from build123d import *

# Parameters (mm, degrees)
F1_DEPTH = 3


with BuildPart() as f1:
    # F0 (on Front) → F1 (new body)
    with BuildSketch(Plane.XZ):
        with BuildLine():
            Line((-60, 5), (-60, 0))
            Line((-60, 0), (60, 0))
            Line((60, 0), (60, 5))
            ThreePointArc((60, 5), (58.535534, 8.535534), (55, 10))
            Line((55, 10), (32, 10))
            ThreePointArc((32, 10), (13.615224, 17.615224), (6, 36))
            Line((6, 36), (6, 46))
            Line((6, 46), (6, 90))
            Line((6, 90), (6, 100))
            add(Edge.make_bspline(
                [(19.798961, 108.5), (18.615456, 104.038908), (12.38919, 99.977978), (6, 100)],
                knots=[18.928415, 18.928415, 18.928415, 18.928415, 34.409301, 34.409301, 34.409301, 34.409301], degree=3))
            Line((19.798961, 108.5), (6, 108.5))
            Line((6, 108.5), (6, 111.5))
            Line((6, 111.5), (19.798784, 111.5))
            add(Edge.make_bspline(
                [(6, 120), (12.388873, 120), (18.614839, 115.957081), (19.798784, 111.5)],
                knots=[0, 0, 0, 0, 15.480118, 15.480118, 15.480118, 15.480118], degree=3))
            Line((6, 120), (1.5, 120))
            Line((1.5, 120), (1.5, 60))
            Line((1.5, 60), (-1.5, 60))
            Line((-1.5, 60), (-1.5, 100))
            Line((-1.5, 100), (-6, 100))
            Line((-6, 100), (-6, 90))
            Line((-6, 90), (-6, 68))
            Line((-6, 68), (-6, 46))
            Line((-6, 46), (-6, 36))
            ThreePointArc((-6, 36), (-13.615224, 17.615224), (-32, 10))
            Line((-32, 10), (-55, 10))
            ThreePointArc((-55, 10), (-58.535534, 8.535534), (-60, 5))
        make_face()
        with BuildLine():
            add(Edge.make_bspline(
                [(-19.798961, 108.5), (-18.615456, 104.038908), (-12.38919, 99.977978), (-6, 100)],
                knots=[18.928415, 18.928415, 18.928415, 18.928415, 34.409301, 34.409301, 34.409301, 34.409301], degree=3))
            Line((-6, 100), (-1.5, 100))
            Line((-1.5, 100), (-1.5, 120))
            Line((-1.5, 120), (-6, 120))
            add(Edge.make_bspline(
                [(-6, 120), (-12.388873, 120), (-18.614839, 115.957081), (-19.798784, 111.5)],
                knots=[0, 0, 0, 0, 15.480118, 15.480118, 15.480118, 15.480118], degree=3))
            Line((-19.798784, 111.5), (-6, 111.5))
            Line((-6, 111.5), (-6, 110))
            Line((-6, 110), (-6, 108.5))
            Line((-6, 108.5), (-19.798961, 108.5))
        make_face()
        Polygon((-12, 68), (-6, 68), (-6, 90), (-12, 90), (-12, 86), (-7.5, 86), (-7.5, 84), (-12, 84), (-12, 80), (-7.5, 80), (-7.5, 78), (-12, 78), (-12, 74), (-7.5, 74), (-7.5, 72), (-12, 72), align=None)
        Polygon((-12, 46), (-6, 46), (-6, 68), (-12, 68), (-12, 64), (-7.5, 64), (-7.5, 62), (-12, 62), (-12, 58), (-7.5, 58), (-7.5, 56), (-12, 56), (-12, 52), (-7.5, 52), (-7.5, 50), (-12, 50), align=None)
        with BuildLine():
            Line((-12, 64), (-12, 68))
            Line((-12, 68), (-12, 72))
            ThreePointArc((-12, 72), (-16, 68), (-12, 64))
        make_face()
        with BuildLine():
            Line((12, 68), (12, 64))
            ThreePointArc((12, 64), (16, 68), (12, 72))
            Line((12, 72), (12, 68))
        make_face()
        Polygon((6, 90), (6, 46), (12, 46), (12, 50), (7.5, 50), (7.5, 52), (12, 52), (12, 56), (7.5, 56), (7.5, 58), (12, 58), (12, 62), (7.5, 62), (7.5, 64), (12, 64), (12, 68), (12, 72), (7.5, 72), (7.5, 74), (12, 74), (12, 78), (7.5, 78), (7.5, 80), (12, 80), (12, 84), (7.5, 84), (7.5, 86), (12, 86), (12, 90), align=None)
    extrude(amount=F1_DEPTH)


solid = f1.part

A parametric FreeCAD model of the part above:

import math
import FreeCAD as App
import Part
import Sketcher
from FreeCAD import Vector
Q = App.Units.Quantity

doc = App.newDocument("Part")
body = doc.addObject("PartDesign::Body", "Body")

# Sketch on XZ plane
sketch1 = doc.addObject("Sketcher::SketchObject", "Sketch")
body.addObject(sketch1)
sketch1.AttachmentSupport = (doc.XZ_Plane, [""])
sketch1.MapMode = "FlatFace"
sketch1.addGeometry([
    Part.LineSegment(Vector(-60, 5, 0), Vector(-60, 0, 0)),  # 0
    Part.LineSegment(Vector(-60, 0, 0), Vector(60, 0, 0)),  # 1
    Part.LineSegment(Vector(60, 0, 0), Vector(60, 5, 0)),  # 2
    Part.ArcOfCircle(Part.Circle(Vector(55, 5, 0), Vector(0, 0, 1), 5), math.radians(-0.000004), math.radians(90.000004)),  # 3
    Part.LineSegment(Vector(55, 10, 0), Vector(32, 10, 0)),  # 4
    Part.ArcOfCircle(Part.Circle(Vector(32.000001, 36.000001, 0), Vector(0, 0, 1), 26.000001), math.radians(-179.999998), math.radians(-90.000002)),  # 5
    Part.LineSegment(Vector(6, 36, 0), Vector(6, 46, 0)),  # 6
    Part.LineSegment(Vector(6, 46, 0), Vector(12, 46, 0)),  # 7
    Part.LineSegment(Vector(12, 46, 0), Vector(12, 50, 0)),  # 8
    Part.LineSegment(Vector(12, 50, 0), Vector(7.5, 50, 0)),  # 9
    Part.LineSegment(Vector(7.5, 50, 0), Vector(7.5, 52, 0)),  # 10
    Part.LineSegment(Vector(7.5, 52, 0), Vector(12, 52, 0)),  # 11
    Part.LineSegment(Vector(12, 52, 0), Vector(12, 56, 0)),  # 12
    Part.LineSegment(Vector(12, 56, 0), Vector(7.5, 56, 0)),  # 13
    Part.LineSegment(Vector(7.5, 56, 0), Vector(7.5, 58, 0)),  # 14
    Part.LineSegment(Vector(7.5, 58, 0), Vector(12, 58, 0)),  # 15
    Part.LineSegment(Vector(12, 58, 0), Vector(12, 62, 0)),  # 16
    Part.LineSegment(Vector(12, 62, 0), Vector(7.5, 62, 0)),  # 17
    Part.LineSegment(Vector(7.5, 62, 0), Vector(7.5, 64, 0)),  # 18
    Part.LineSegment(Vector(7.5, 64, 0), Vector(12, 64, 0)),  # 19
    Part.ArcOfCircle(Part.Circle(Vector(12, 68, 0), Vector(0, 0, 1), 4), math.radians(-90), math.radians(90)),  # 20
    Part.LineSegment(Vector(12, 72, 0), Vector(7.5, 72, 0)),  # 21
    Part.LineSegment(Vector(7.5, 72, 0), Vector(7.5, 74, 0)),  # 22
    Part.LineSegment(Vector(7.5, 74, 0), Vector(12, 74, 0)),  # 23
    Part.LineSegment(Vector(12, 74, 0), Vector(12, 78, 0)),  # 24
    Part.LineSegment(Vector(12, 78, 0), Vector(7.5, 78, 0)),  # 25
    Part.LineSegment(Vector(7.5, 78, 0), Vector(7.5, 80, 0)),  # 26
    Part.LineSegment(Vector(7.5, 80, 0), Vector(12, 80, 0)),  # 27
    Part.LineSegment(Vector(12, 80, 0), Vector(12, 84, 0)),  # 28
    Part.LineSegment(Vector(12, 84, 0), Vector(7.5, 84, 0)),  # 29
    Part.LineSegment(Vector(7.5, 84, 0), Vector(7.5, 86, 0)),  # 30
    Part.LineSegment(Vector(7.5, 86, 0), Vector(12, 86, 0)),  # 31
    Part.LineSegment(Vector(12, 86, 0), Vector(12, 90, 0)),  # 32
    Part.LineSegment(Vector(12, 90, 0), Vector(6, 90, 0)),  # 33
    Part.LineSegment(Vector(6, 90, 0), Vector(6, 100, 0)),  # 34
    Part.BSplineCurve([Vector(19.798961, 108.5, 0), Vector(18.615456, 104.038908, 0), Vector(12.38919, 99.977978, 0), Vector(6, 100, 0)], [4, 4], [18.928415, 34.409301], False, 3, [1, 1, 1, 1], False),  # 35
    Part.LineSegment(Vector(19.798961, 108.5, 0), Vector(6, 108.5, 0)),  # 36
    Part.LineSegment(Vector(6, 108.5, 0), Vector(6, 111.5, 0)),  # 37
    Part.LineSegment(Vector(6, 111.5, 0), Vector(19.798784, 111.5, 0)),  # 38
    Part.BSplineCurve([Vector(6, 120, 0), Vector(12.388873, 120, 0), Vector(18.614839, 115.957081, 0), Vector(19.798784, 111.5, 0)], [4, 4], [0, 15.480118], False, 3, [1, 1, 1, 1], False),  # 39
    Part.LineSegment(Vector(6, 120, 0), Vector(1.5, 120, 0)),  # 40
    Part.LineSegment(Vector(1.5, 120, 0), Vector(1.5, 60, 0)),  # 41
    Part.LineSegment(Vector(1.5, 60, 0), Vector(-1.5, 60, 0)),  # 42
    Part.LineSegment(Vector(-1.5, 60, 0), Vector(-1.5, 120, 0)),  # 43
    Part.LineSegment(Vector(-1.5, 120, 0), Vector(-6, 120, 0)),  # 44
    Part.BSplineCurve([Vector(-6, 120, 0), Vector(-12.388873, 120, 0), Vector(-18.614839, 115.957081, 0), Vector(-19.798784, 111.5, 0)], [4, 4], [0, 15.480118], False, 3, [1, 1, 1, 1], False),  # 45
    Part.LineSegment(Vector(-19.798784, 111.5, 0), Vector(-6, 111.5, 0)),  # 46
    Part.LineSegment(Vector(-6, 111.5, 0), Vector(-6, 108.5, 0)),  # 47
    Part.LineSegment(Vector(-6, 108.5, 0), Vector(-19.798961, 108.5, 0)),  # 48
    Part.BSplineCurve([Vector(-19.798961, 108.5, 0), Vector(-18.615456, 104.038908, 0), Vector(-12.38919, 99.977978, 0), Vector(-6, 100, 0)], [4, 4], [18.928415, 34.409301], False, 3, [1, 1, 1, 1], False),  # 49
    Part.LineSegment(Vector(-6, 100, 0), Vector(-6, 90, 0)),  # 50
    Part.LineSegment(Vector(-6, 90, 0), Vector(-12, 90, 0)),  # 51
    Part.LineSegment(Vector(-12, 90, 0), Vector(-12, 86, 0)),  # 52
    Part.LineSegment(Vector(-12, 86, 0), Vector(-7.5, 86, 0)),  # 53
    Part.LineSegment(Vector(-7.5, 86, 0), Vector(-7.5, 84, 0)),  # 54
    Part.LineSegment(Vector(-7.5, 84, 0), Vector(-12, 84, 0)),  # 55
    Part.LineSegment(Vector(-12, 84, 0), Vector(-12, 80, 0)),  # 56
    Part.LineSegment(Vector(-12, 80, 0), Vector(-7.5, 80, 0)),  # 57
    Part.LineSegment(Vector(-7.5, 80, 0), Vector(-7.5, 78, 0)),  # 58
    Part.LineSegment(Vector(-7.5, 78, 0), Vector(-12, 78, 0)),  # 59
    Part.LineSegment(Vector(-12, 78, 0), Vector(-12, 74, 0)),  # 60
    Part.LineSegment(Vector(-12, 74, 0), Vector(-7.5, 74, 0)),  # 61
    Part.LineSegment(Vector(-7.5, 74, 0), Vector(-7.5, 72, 0)),  # 62
    Part.LineSegment(Vector(-7.5, 72, 0), Vector(-12, 72, 0)),  # 63
    Part.ArcOfCircle(Part.Circle(Vector(-12, 68, 0), Vector(0, 0, 1), 4), math.radians(90), math.radians(270)),  # 64
    Part.LineSegment(Vector(-12, 64, 0), Vector(-7.5, 64, 0)),  # 65
    Part.LineSegment(Vector(-7.5, 64, 0), Vector(-7.5, 62, 0)),  # 66
    Part.LineSegment(Vector(-7.5, 62, 0), Vector(-12, 62, 0)),  # 67
    Part.LineSegment(Vector(-12, 62, 0), Vector(-12, 58, 0)),  # 68
    Part.LineSegment(Vector(-12, 58, 0), Vector(-7.5, 58, 0)),  # 69
    Part.LineSegment(Vector(-7.5, 58, 0), Vector(-7.5, 56, 0)),  # 70
    Part.LineSegment(Vector(-7.5, 56, 0), Vector(-12, 56, 0)),  # 71
    Part.LineSegment(Vector(-12, 56, 0), Vector(-12, 52, 0)),  # 72
    Part.LineSegment(Vector(-12, 52, 0), Vector(-7.5, 52, 0)),  # 73
    Part.LineSegment(Vector(-7.5, 52, 0), Vector(-7.5, 50, 0)),  # 74
    Part.LineSegment(Vector(-7.5, 50, 0), Vector(-12, 50, 0)),  # 75
    Part.LineSegment(Vector(-12, 50, 0), Vector(-12, 46, 0)),  # 76
    Part.LineSegment(Vector(-12, 46, 0), Vector(-6, 46, 0)),  # 77
    Part.LineSegment(Vector(-6, 46, 0), Vector(-6, 36, 0)),  # 78
    Part.ArcOfCircle(Part.Circle(Vector(-32.000001, 36.000001, 0), Vector(0, 0, 1), 26.000001), math.radians(-89.999998), math.radians(-0.000002)),  # 79
    Part.LineSegment(Vector(-32, 10, 0), Vector(-55, 10, 0)),  # 80
    Part.ArcOfCircle(Part.Circle(Vector(-55, 5, 0), Vector(0, 0, 1), 5), math.radians(89.999996), math.radians(180.000004)),  # 81
], False)
sketch1.addConstraint([
    Sketcher.Constraint("Block", 35),
    Sketcher.Constraint("Block", 39),
    Sketcher.Constraint("Block", 45),
    Sketcher.Constraint("Block", 49),
    Sketcher.Constraint("Coincident", 0, 2, 1, 1),
    Sketcher.Constraint("Coincident", 1, 2, 2, 1),
    Sketcher.Constraint("Coincident", 2, 2, 3, 1),
    Sketcher.Constraint("Coincident", 3, 2, 4, 1),
    Sketcher.Constraint("Coincident", 4, 2, 5, 2),
    Sketcher.Constraint("Coincident", 5, 1, 6, 1),
    Sketcher.Constraint("Coincident", 6, 2, 7, 1),
    Sketcher.Constraint("Coincident", 7, 2, 8, 1),
    Sketcher.Constraint("Coincident", 8, 2, 9, 1),
    Sketcher.Constraint("Coincident", 9, 2, 10, 1),
    Sketcher.Constraint("Coincident", 10, 2, 11, 1),
    Sketcher.Constraint("Coincident", 11, 2, 12, 1),
    Sketcher.Constraint("Coincident", 12, 2, 13, 1),
    Sketcher.Constraint("Coincident", 13, 2, 14, 1),
    Sketcher.Constraint("Coincident", 14, 2, 15, 1),
    Sketcher.Constraint("Coincident", 15, 2, 16, 1),
    Sketcher.Constraint("Coincident", 16, 2, 17, 1),
    Sketcher.Constraint("Coincident", 17, 2, 18, 1),
    Sketcher.Constraint("Coincident", 18, 2, 19, 1),
    Sketcher.Constraint("Coincident", 19, 2, 20, 1),
    Sketcher.Constraint("Coincident", 20, 2, 21, 1),
    Sketcher.Constraint("Coincident", 21, 2, 22, 1),
    Sketcher.Constraint("Coincident", 22, 2, 23, 1),
    Sketcher.Constraint("Coincident", 23, 2, 24, 1),
    Sketcher.Constraint("Coincident", 24, 2, 25, 1),
    Sketcher.Constraint("Coincident", 25, 2, 26, 1),
    Sketcher.Constraint("Coincident", 26, 2, 27, 1),
    Sketcher.Constraint("Coincident", 27, 2, 28, 1),
    Sketcher.Constraint("Coincident", 28, 2, 29, 1),
    Sketcher.Constraint("Coincident", 29, 2, 30, 1),
    Sketcher.Constraint("Coincident", 30, 2, 31, 1),
    Sketcher.Constraint("Coincident", 31, 2, 32, 1),
    Sketcher.Constraint("Coincident", 32, 2, 33, 1),
    Sketcher.Constraint("Coincident", 33, 2, 34, 1),
    Sketcher.Constraint("Coincident", 34, 2, 35, 2),
    Sketcher.Constraint("Coincident", 35, 1, 36, 1),
    Sketcher.Constraint("Coincident", 36, 2, 37, 1),
    Sketcher.Constraint("Coincident", 37, 2, 38, 1),
    Sketcher.Constraint("Coincident", 38, 2, 39, 2),
    Sketcher.Constraint("Coincident", 39, 1, 40, 1),
    Sketcher.Constraint("Coincident", 40, 2, 41, 1),
    Sketcher.Constraint("Coincident", 41, 2, 42, 1),
    Sketcher.Constraint("Coincident", 42, 2, 43, 1),
    Sketcher.Constraint("Coincident", 43, 2, 44, 1),
    Sketcher.Constraint("Coincident", 44, 2, 45, 1),
    Sketcher.Constraint("Coincident", 45, 2, 46, 1),
    Sketcher.Constraint("Coincident", 46, 2, 47, 1),
    Sketcher.Constraint("Coincident", 47, 2, 48, 1),
    Sketcher.Constraint("Coincident", 48, 2, 49, 1),
    Sketcher.Constraint("Coincident", 49, 2, 50, 1),
    Sketcher.Constraint("Coincident", 50, 2, 51, 1),
    Sketcher.Constraint("Coincident", 51, 2, 52, 1),
    Sketcher.Constraint("Coincident", 52, 2, 53, 1),
    Sketcher.Constraint("Coincident", 53, 2, 54, 1),
    Sketcher.Constraint("Coincident", 54, 2, 55, 1),
    Sketcher.Constraint("Coincident", 55, 2, 56, 1),
    Sketcher.Constraint("Coincident", 56, 2, 57, 1),
    Sketcher.Constraint("Coincident", 57, 2, 58, 1),
    Sketcher.Constraint("Coincident", 58, 2, 59, 1),
    Sketcher.Constraint("Coincident", 59, 2, 60, 1),
    Sketcher.Constraint("Coincident", 60, 2, 61, 1),
    Sketcher.Constraint("Coincident", 61, 2, 62, 1),
    Sketcher.Constraint("Coincident", 62, 2, 63, 1),
    Sketcher.Constraint("Coincident", 63, 2, 64, 1),
    Sketcher.Constraint("Coincident", 64, 2, 65, 1),
    Sketcher.Constraint("Coincident", 65, 2, 66, 1),
    Sketcher.Constraint("Coincident", 66, 2, 67, 1),
    Sketcher.Constraint("Coincident", 67, 2, 68, 1),
    Sketcher.Constraint("Coincident", 68, 2, 69, 1),
    Sketcher.Constraint("Coincident", 69, 2, 70, 1),
    Sketcher.Constraint("Coincident", 70, 2, 71, 1),
    Sketcher.Constraint("Coincident", 71, 2, 72, 1),
    Sketcher.Constraint("Coincident", 72, 2, 73, 1),
    Sketcher.Constraint("Coincident", 73, 2, 74, 1),
    Sketcher.Constraint("Coincident", 74, 2, 75, 1),
    Sketcher.Constraint("Coincident", 75, 2, 76, 1),
    Sketcher.Constraint("Coincident", 76, 2, 77, 1),
    Sketcher.Constraint("Coincident", 77, 2, 78, 1),
    Sketcher.Constraint("Coincident", 78, 2, 79, 2),
    Sketcher.Constraint("Coincident", 79, 1, 80, 1),
    Sketcher.Constraint("Coincident", 80, 2, 81, 1),
    Sketcher.Constraint("Coincident", 81, 2, 0, 1),
    Sketcher.Constraint("Vertical", 0),
    Sketcher.Constraint("Horizontal", 1),
    Sketcher.Constraint("Vertical", 2),
    Sketcher.Constraint("Horizontal", 4),
    Sketcher.Constraint("Vertical", 6),
    Sketcher.Constraint("Horizontal", 7),
    Sketcher.Constraint("Vertical", 8),
    Sketcher.Constraint("Horizontal", 9),
    Sketcher.Constraint("Vertical", 10),
    Sketcher.Constraint("Horizontal", 11),
    Sketcher.Constraint("Vertical", 12),
    Sketcher.Constraint("Horizontal", 13),
    Sketcher.Constraint("Vertical", 14),
    Sketcher.Constraint("Horizontal", 15),
    Sketcher.Constraint("Vertical", 16),
    Sketcher.Constraint("Horizontal", 17),
    Sketcher.Constraint("Vertical", 18),
    Sketcher.Constraint("Horizontal", 19),
    Sketcher.Constraint("Horizontal", 21),
    Sketcher.Constraint("Vertical", 22),
    Sketcher.Constraint("Horizontal", 23),
    Sketcher.Constraint("Vertical", 24),
    Sketcher.Constraint("Horizontal", 25),
    Sketcher.Constraint("Vertical", 26),
    Sketcher.Constraint("Horizontal", 27),
    Sketcher.Constraint("Vertical", 28),
    Sketcher.Constraint("Horizontal", 29),
    Sketcher.Constraint("Vertical", 30),
    Sketcher.Constraint("Horizontal", 31),
    Sketcher.Constraint("Vertical", 32),
    Sketcher.Constraint("Horizontal", 33),
    Sketcher.Constraint("Vertical", 34),
    Sketcher.Constraint("Horizontal", 36),
    Sketcher.Constraint("Vertical", 37),
    Sketcher.Constraint("Horizontal", 38),
    Sketcher.Constraint("Horizontal", 40),
    Sketcher.Constraint("Vertical", 41),
    Sketcher.Constraint("Horizontal", 42),
    Sketcher.Constraint("Vertical", 43),
    Sketcher.Constraint("Horizontal", 44),
    Sketcher.Constraint("Horizontal", 46),
    Sketcher.Constraint("Vertical", 47),
    Sketcher.Constraint("Horizontal", 48),
    Sketcher.Constraint("Vertical", 50),
    Sketcher.Constraint("Horizontal", 51),
    Sketcher.Constraint("Vertical", 52),
    Sketcher.Constraint("Horizontal", 53),
    Sketcher.Constraint("Vertical", 54),
    Sketcher.Constraint("Horizontal", 55),
    Sketcher.Constraint("Vertical", 56),
    Sketcher.Constraint("Horizontal", 57),
    Sketcher.Constraint("Vertical", 58),
    Sketcher.Constraint("Horizontal", 59),
    Sketcher.Constraint("Vertical", 60),
    Sketcher.Constraint("Horizontal", 61),
    Sketcher.Constraint("Vertical", 62),
    Sketcher.Constraint("Horizontal", 63),
    Sketcher.Constraint("Horizontal", 65),
    Sketcher.Constraint("Vertical", 66),
    Sketcher.Constraint("Horizontal", 67),
    Sketcher.Constraint("Vertical", 68),
    Sketcher.Constraint("Horizontal", 69),
    Sketcher.Constraint("Vertical", 70),
    Sketcher.Constraint("Horizontal", 71),
    Sketcher.Constraint("Vertical", 72),
    Sketcher.Constraint("Horizontal", 73),
    Sketcher.Constraint("Vertical", 74),
    Sketcher.Constraint("Horizontal", 75),
    Sketcher.Constraint("Vertical", 76),
    Sketcher.Constraint("Horizontal", 77),
    Sketcher.Constraint("Vertical", 78),
    Sketcher.Constraint("Horizontal", 80),
    Sketcher.Constraint("PointOnObject", 0, 2, -1),
    Sketcher.Constraint("Radius", 3, Q("5 mm")),
    Sketcher.Constraint("Radius", 5, Q("26.000001 mm")),
    Sketcher.Constraint("Radius", 20, Q("4 mm")),
    Sketcher.Constraint("Radius", 64, Q("4 mm")),
    Sketcher.Constraint("Radius", 79, Q("26.000001 mm")),
    Sketcher.Constraint("Radius", 81, Q("5 mm")),
    Sketcher.Constraint("DistanceX", 1, 1, 1, 2, Q("120 mm")),
    Sketcher.Constraint("DistanceX", 4, 2, 4, 1, Q("23 mm")),
    Sketcher.Constraint("DistanceX", 7, 1, 7, 2, Q("6 mm")),
    Sketcher.Constraint("DistanceX", 33, 2, 33, 1, Q("6 mm")),
    Sketcher.Constraint("DistanceX", 42, 2, 42, 1, Q("3 mm")),
    Sketcher.Constraint("DistanceX", 51, 2, 51, 1, Q("6 mm")),
    Sketcher.Constraint("DistanceX", 77, 1, 77, 2, Q("6 mm")),
    Sketcher.Constraint("DistanceX", 80, 2, 80, 1, Q("23 mm")),
    Sketcher.Constraint("DistanceY", 0, 2, 0, 1, Q("5 mm")),
    Sketcher.Constraint("DistanceY", 2, 1, 2, 2, Q("5 mm")),
    Sketcher.Constraint("DistanceY", 6, 1, 6, 2, Q("10 mm")),
    Sketcher.Constraint("DistanceY", 8, 1, 8, 2, Q("4 mm")),
    Sketcher.Constraint("DistanceY", 10, 1, 10, 2, Q("2 mm")),
    Sketcher.Constraint("DistanceY", 12, 1, 12, 2, Q("4 mm")),
    Sketcher.Constraint("DistanceY", 14, 1, 14, 2, Q("2 mm")),
    Sketcher.Constraint("DistanceY", 16, 1, 16, 2, Q("4 mm")),
    Sketcher.Constraint("DistanceY", 18, 1, 18, 2, Q("2 mm")),
    Sketcher.Constraint("DistanceY", 22, 1, 22, 2, Q("2 mm")),
    Sketcher.Constraint("DistanceY", 24, 1, 24, 2, Q("4 mm")),
    Sketcher.Constraint("DistanceY", 26, 1, 26, 2, Q("2 mm")),
    Sketcher.Constraint("DistanceY", 28, 1, 28, 2, Q("4 mm")),
    Sketcher.Constraint("DistanceY", 30, 1, 30, 2, Q("2 mm")),
    Sketcher.Constraint("DistanceY", 32, 1, 32, 2, Q("4 mm")),
    Sketcher.Constraint("DistanceY", 34, 1, 34, 2, Q("10 mm")),
    Sketcher.Constraint("DistanceY", 41, 2, 41, 1, Q("60 mm")),
    Sketcher.Constraint("DistanceY", 50, 2, 50, 1, Q("10 mm")),
    Sketcher.Constraint("DistanceY", 52, 2, 52, 1, Q("4 mm")),
    Sketcher.Constraint("DistanceY", 54, 2, 54, 1, Q("2 mm")),
    Sketcher.Constraint("DistanceY", 56, 2, 56, 1, Q("4 mm")),
    Sketcher.Constraint("DistanceY", 58, 2, 58, 1, Q("2 mm")),
    Sketcher.Constraint("DistanceY", 60, 2, 60, 1, Q("4 mm")),
    Sketcher.Constraint("DistanceY", 62, 2, 62, 1, Q("2 mm")),
    Sketcher.Constraint("DistanceY", 66, 2, 66, 1, Q("2 mm")),
    Sketcher.Constraint("DistanceY", 68, 2, 68, 1, Q("4 mm")),
    Sketcher.Constraint("DistanceY", 70, 2, 70, 1, Q("2 mm")),
    Sketcher.Constraint("DistanceY", 72, 2, 72, 1, Q("4 mm")),
    Sketcher.Constraint("DistanceY", 74, 2, 74, 1, Q("2 mm")),
    Sketcher.Constraint("DistanceY", 76, 2, 76, 1, Q("4 mm")),
    Sketcher.Constraint("DistanceY", 78, 2, 78, 1, Q("10 mm")),
    Sketcher.Constraint("DistanceX", 9, 2, 9, 1, Q("4.5 mm")),
    Sketcher.Constraint("DistanceX", 11, 1, 11, 2, Q("4.5 mm")),
    Sketcher.Constraint("DistanceX", 13, 2, 13, 1, Q("4.5 mm")),
    Sketcher.Constraint("DistanceX", 15, 1, 15, 2, Q("4.5 mm")),
    Sketcher.Constraint("DistanceX", 17, 2, 17, 1, Q("4.5 mm")),
    Sketcher.Constraint("DistanceX", 19, 1, 19, 2, Q("4.5 mm")),
    Sketcher.Constraint("DistanceX", 21, 2, 21, 1, Q("4.5 mm")),
    Sketcher.Constraint("DistanceX", 23, 1, 23, 2, Q("4.5 mm")),
    Sketcher.Constraint("DistanceX", 25, 2, 25, 1, Q("4.5 mm")),
    Sketcher.Constraint("DistanceX", 27, 1, 27, 2, Q("4.5 mm")),
    Sketcher.Constraint("DistanceX", 29, 2, 29, 1, Q("4.5 mm")),
    Sketcher.Constraint("DistanceX", 31, 1, 31, 2, Q("4.5 mm")),
    Sketcher.Constraint("DistanceX", 40, 2, 40, 1, Q("4.5 mm")),
    Sketcher.Constraint("DistanceX", 53, 1, 53, 2, Q("4.5 mm")),
    Sketcher.Constraint("DistanceX", 55, 2, 55, 1, Q("4.5 mm")),
    Sketcher.Constraint("DistanceX", 57, 1, 57, 2, Q("4.5 mm")),
    Sketcher.Constraint("DistanceX", 59, 2, 59, 1, Q("4.5 mm")),
    Sketcher.Constraint("DistanceX", 61, 1, 61, 2, Q("4.5 mm")),
    Sketcher.Constraint("DistanceX", 63, 2, 63, 1, Q("4.5 mm")),
    Sketcher.Constraint("DistanceX", 65, 1, 65, 2, Q("4.5 mm")),
    Sketcher.Constraint("DistanceX", 67, 2, 67, 1, Q("4.5 mm")),
    Sketcher.Constraint("DistanceX", 69, 1, 69, 2, Q("4.5 mm")),
    Sketcher.Constraint("DistanceX", 71, 2, 71, 1, Q("4.5 mm")),
    Sketcher.Constraint("DistanceX", 73, 1, 73, 2, Q("4.5 mm")),
    Sketcher.Constraint("DistanceX", 75, 2, 75, 1, Q("4.5 mm")),
    Sketcher.Constraint("DistanceX", -1, 1, 3, 3, Q("55 mm")),
    Sketcher.Constraint("DistanceY", -1, 1, 3, 3, Q("5 mm")),
    Sketcher.Constraint("DistanceX", -1, 1, 5, 3, Q("32.000001 mm")),
    Sketcher.Constraint("DistanceX", -1, 1, 20, 3, Q("12 mm")),
    Sketcher.Constraint("DistanceX", 64, 3, -1, 1, Q("12 mm")),
    Sketcher.Constraint("DistanceX", 79, 3, -1, 1, Q("32.000001 mm")),
    Sketcher.Constraint("DistanceY", -1, 1, 79, 3, Q("36.000001 mm")),
    Sketcher.Constraint("DistanceX", -1, 1, 3, 2, Q("55 mm")),
    Sketcher.Constraint("DistanceX", -1, 1, 36, 2, Q("6 mm")),
    Sketcher.Constraint("DistanceX", 46, 2, -1, 1, Q("6 mm")),
    Sketcher.Constraint("DistanceX", 79, 1, -1, 1, Q("32 mm")),
])
pad1 = doc.addObject("PartDesign::Pad", "Pad")
body.addObject(pad1)
pad1.Profile = sketch1
pad1.Length = 3

doc.recompute()
